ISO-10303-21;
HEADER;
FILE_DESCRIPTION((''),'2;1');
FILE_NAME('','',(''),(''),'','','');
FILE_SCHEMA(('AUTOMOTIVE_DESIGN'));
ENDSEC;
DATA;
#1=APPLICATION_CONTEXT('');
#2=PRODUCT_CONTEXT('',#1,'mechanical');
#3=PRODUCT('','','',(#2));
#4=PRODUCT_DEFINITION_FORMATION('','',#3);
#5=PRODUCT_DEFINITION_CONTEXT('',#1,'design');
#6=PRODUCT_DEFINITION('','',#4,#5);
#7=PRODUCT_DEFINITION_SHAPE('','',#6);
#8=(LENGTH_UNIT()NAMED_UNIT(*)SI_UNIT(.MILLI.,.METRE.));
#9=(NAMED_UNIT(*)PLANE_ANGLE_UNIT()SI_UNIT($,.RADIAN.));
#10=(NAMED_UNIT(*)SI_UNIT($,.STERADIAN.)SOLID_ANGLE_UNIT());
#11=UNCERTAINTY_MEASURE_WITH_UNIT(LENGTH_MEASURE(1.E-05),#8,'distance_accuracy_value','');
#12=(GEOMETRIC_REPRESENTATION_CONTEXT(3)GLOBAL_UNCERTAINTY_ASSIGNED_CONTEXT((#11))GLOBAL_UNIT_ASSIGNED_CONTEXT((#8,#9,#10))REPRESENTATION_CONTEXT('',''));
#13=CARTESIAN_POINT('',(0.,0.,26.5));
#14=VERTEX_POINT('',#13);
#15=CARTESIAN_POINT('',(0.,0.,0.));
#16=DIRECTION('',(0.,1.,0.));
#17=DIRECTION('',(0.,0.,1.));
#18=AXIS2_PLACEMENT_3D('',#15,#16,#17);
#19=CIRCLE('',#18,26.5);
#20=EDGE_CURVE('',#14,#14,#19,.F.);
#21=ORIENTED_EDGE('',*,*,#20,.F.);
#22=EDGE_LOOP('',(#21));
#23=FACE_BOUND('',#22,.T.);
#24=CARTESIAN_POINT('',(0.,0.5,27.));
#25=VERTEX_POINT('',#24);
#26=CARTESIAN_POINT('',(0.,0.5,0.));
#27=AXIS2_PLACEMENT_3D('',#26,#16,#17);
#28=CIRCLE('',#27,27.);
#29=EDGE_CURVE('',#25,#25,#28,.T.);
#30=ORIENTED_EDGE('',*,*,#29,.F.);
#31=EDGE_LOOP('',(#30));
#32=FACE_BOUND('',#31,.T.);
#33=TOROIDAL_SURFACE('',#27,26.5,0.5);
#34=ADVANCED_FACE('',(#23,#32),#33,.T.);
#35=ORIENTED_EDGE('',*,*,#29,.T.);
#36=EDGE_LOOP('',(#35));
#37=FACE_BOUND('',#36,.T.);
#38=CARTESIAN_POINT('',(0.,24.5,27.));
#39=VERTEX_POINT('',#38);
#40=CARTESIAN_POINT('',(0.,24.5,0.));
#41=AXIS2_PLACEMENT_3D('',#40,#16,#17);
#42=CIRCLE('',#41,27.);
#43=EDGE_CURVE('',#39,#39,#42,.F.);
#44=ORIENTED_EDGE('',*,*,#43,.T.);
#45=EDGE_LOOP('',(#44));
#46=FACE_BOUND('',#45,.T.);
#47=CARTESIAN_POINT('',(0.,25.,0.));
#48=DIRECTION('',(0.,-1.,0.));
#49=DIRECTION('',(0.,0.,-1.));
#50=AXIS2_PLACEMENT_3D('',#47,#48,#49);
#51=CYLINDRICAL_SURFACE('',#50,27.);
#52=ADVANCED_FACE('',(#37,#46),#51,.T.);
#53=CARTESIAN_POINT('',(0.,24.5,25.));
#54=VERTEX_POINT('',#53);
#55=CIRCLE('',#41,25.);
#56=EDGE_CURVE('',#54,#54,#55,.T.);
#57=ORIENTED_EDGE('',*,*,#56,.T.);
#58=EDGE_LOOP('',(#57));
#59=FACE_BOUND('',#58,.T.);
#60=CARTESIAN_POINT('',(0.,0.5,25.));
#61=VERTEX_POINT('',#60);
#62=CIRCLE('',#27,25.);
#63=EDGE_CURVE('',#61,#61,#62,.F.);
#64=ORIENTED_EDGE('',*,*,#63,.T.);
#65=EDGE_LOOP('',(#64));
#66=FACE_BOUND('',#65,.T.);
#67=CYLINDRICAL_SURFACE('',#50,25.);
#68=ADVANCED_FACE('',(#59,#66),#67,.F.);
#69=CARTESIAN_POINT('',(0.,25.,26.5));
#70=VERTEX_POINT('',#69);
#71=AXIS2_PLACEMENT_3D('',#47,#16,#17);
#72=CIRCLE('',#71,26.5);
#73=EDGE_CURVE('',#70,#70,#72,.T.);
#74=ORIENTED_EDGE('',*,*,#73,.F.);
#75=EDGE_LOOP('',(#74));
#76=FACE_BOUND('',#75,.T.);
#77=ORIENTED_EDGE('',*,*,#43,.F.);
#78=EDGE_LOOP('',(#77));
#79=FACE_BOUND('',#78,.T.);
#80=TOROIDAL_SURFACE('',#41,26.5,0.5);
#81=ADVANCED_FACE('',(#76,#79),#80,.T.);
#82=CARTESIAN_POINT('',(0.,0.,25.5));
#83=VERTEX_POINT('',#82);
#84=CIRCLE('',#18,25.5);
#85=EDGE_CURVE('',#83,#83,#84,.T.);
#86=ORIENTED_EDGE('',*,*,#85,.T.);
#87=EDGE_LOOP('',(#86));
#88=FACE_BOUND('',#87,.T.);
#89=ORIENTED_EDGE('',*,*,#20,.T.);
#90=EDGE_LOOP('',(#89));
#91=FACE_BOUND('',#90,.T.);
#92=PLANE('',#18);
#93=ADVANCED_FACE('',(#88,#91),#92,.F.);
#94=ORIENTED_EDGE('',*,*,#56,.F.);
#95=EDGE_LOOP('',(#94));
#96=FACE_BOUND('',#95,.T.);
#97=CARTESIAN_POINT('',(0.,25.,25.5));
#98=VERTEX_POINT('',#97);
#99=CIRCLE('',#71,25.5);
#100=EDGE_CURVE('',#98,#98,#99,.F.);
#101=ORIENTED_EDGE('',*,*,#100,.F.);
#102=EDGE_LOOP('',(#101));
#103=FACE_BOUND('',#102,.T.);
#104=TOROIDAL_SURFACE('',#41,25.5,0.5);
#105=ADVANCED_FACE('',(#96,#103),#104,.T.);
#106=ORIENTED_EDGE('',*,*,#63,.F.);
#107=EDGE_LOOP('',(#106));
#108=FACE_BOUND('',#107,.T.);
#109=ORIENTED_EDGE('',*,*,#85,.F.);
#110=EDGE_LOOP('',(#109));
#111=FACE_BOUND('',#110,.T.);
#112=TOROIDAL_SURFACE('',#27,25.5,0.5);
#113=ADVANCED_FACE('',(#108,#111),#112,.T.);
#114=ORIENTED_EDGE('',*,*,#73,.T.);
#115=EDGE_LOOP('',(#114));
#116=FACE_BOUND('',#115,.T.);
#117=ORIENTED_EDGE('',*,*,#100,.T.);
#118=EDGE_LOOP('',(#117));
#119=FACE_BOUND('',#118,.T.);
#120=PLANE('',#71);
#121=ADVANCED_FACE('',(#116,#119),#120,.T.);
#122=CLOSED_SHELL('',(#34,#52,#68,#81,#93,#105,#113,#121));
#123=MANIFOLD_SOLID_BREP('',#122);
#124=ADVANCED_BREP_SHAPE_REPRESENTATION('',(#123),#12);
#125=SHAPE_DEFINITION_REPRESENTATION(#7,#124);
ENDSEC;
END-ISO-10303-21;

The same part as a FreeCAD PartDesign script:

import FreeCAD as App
import Part
import Sketcher
from FreeCAD import Vector
Q = App.Units.Quantity


def edges_at(feature, points):
    """Names of the edges that pass closest to the given points."""
    edges = feature.Shape.Edges
    near = lambda p: min(range(len(edges)), key=lambda i: edges[i].distToShape(Part.Vertex(*p))[0])
    return sorted({f"Edge{near(p) + 1}" for p in points})

doc = App.newDocument("Part")
body = doc.addObject("PartDesign::Body", "Body")

# Sketch on XZ plane
sketch1 = doc.addObject("Sketcher::SketchObject", "Sketch")
body.addObject(sketch1)
sketch1.AttachmentSupport = (doc.XZ_Plane, [""])
sketch1.MapMode = "FlatFace"
sketch1.addGeometry(Part.Circle(Vector(0, 0, 0), Vector(0, 0, 1), 27), False)
sketch1.addGeometry(Part.Circle(Vector(0, 0, 0), Vector(0, 0, 1), 25), False)
sketch1.addConstraint(Sketcher.Constraint("Coincident", 0, 3, -1, 1))
sketch1.addConstraint(Sketcher.Constraint("Coincident", 1, 3, -1, 1))
sketch1.addConstraint(Sketcher.Constraint("Diameter", 0, Q("54 mm")))
sketch1.addConstraint(Sketcher.Constraint("Diameter", 1, Q("50 mm")))
pad1 = doc.addObject("PartDesign::Pad", "Pad")
body.addObject(pad1)
pad1.Profile = sketch1
pad1.Length = 25
pad1.Reversed = True
doc.recompute()

fillet = doc.addObject("PartDesign::Fillet", "Fillet")
body.addObject(fillet)
fillet.Base = (pad1, edges_at(pad1, [
    (-27, 0, 0),
    (-27, 25, 0),
    (-25, 0, 0),
    (-25, 25, 0),
]))
fillet.Radius = 0.5

doc.recompute()
